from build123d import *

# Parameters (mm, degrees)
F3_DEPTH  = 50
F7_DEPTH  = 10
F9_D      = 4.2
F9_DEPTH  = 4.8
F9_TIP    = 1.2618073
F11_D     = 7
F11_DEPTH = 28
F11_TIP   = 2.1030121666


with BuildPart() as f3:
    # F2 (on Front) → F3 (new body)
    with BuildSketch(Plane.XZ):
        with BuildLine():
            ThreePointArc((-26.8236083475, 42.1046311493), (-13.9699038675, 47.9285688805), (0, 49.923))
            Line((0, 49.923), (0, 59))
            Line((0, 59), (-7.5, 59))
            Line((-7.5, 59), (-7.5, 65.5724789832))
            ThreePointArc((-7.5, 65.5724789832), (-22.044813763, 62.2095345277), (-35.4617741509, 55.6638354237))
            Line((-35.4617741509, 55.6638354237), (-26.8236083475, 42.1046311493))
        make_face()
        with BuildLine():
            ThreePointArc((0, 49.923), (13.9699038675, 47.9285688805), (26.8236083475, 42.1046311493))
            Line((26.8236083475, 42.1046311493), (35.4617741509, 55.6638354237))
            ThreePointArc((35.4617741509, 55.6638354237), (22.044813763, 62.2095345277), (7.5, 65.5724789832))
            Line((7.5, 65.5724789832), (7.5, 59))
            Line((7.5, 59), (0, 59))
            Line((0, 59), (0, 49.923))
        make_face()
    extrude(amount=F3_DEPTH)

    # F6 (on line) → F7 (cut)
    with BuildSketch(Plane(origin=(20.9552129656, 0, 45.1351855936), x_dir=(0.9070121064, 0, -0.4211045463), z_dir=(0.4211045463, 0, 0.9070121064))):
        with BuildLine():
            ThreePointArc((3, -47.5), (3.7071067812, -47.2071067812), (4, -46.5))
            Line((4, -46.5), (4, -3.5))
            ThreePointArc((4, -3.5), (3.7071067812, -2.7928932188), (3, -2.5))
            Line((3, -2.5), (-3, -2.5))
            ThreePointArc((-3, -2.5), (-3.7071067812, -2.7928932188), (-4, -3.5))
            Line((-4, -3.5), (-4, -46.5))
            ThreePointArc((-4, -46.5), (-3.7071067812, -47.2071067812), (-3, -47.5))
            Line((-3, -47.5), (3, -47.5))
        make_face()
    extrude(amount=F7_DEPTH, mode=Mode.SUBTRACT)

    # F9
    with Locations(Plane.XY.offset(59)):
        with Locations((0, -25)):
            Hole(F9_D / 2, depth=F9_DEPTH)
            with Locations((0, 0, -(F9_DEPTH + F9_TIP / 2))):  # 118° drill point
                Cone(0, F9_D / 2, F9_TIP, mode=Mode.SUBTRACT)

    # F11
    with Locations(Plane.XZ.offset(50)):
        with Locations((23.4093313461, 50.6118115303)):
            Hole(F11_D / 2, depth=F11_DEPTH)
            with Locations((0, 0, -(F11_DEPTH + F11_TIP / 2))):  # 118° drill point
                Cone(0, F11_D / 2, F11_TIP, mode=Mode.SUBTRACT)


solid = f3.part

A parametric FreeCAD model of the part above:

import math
import FreeCAD as App
import Part
import Sketcher
from FreeCAD import Vector
Q = App.Units.Quantity

doc = App.newDocument("Part")
body = doc.addObject("PartDesign::Body", "Body")

# Sketch on XZ plane
sketch1 = doc.addObject("Sketcher::SketchObject", "Sketch")
body.addObject(sketch1)
sketch1.AttachmentSupport = (doc.XZ_Plane, [""])
sketch1.MapMode = "FlatFace"
sketch1.addGeometry([
    Part.ArcOfCircle(Part.Circle(Vector(0, 0, 0), Vector(0, 0, 1), 50), math.radians(90), math.radians(122)),  # 0
    Part.ArcOfCircle(Part.Circle(Vector(0, 0, 0), Vector(0, 0, 1), 50), math.radians(58), math.radians(90)),  # 1
    Part.LineSegment(Vector(27, 42, 0), Vector(35, 56, 0)),  # 2
    Part.ArcOfCircle(Part.Circle(Vector(0, 0, 0), Vector(0, 0, 1), 66), math.radians(58), math.radians(83)),  # 3
    Part.LineSegment(Vector(8, 66, 0), Vector(8, 59, 0)),  # 4
    Part.LineSegment(Vector(8, 59, 0), Vector(-8, 59, 0)),  # 5
    Part.LineSegment(Vector(-8, 59, 0), Vector(-8, 66, 0)),  # 6
    Part.ArcOfCircle(Part.Circle(Vector(0, 0, 0), Vector(0, 0, 1), 66), math.radians(97), math.radians(122)),  # 7
    Part.LineSegment(Vector(-35, 56, 0), Vector(-27, 42, 0)),  # 8
], False)
sketch1.addConstraint([
    Sketcher.Constraint("Tangent", 0, 1, 1, 2),
    Sketcher.Constraint("Coincident", 1, 1, 2, 1),
    Sketcher.Constraint("Coincident", 2, 2, 3, 1),
    Sketcher.Constraint("Coincident", 3, 2, 4, 1),
    Sketcher.Constraint("Coincident", 4, 2, 5, 1),
    Sketcher.Constraint("Coincident", 5, 2, 6, 1),
    Sketcher.Constraint("Coincident", 6, 2, 7, 1),
    Sketcher.Constraint("Coincident", 7, 2, 8, 1),
    Sketcher.Constraint("Coincident", 8, 2, 0, 2),
    Sketcher.Constraint("Vertical", 4),
    Sketcher.Constraint("Horizontal", 5),
    Sketcher.Constraint("Vertical", 6),
    Sketcher.Constraint("Coincident", 0, 3, -1, 1),
    Sketcher.Constraint("Coincident", 3, 3, -1, 1),
    Sketcher.Constraint("Coincident", 7, 3, -1, 1),
    Sketcher.Constraint("Equal", 0, 1),
    Sketcher.Constraint("Equal", 3, 7),
    Sketcher.Constraint("PointOnObject", 0, 1, -2),
    Sketcher.Constraint("Horizontal", 3, 2, 6, 2),
    Sketcher.Constraint("Horizontal", 2, 2, 7, 2),
    Sketcher.Constraint("Horizontal", 1, 1, 8, 2),
    Sketcher.Constraint("Radius", 3, 66.0),
    Sketcher.Constraint("DistanceX", 5, 2, 5, 1, 15.0),
    Sketcher.Constraint("DistanceY", -1, 1, 4, 2, 59.0),
    Sketcher.Constraint("Angle", 2, Q("57.5 deg")),
    Sketcher.Constraint("Radius", 0, 49.923),
    Sketcher.Constraint("DistanceX", -1, 1, 1, 1, 26.823608),
])
pad1 = doc.addObject("PartDesign::Pad", "Pad")
body.addObject(pad1)
pad1.Profile = sketch1
pad1.Length = 50

# Sketch on an angled plane
sketch2 = doc.addObject("Sketcher::SketchObject", "Sketch001")
body.addObject(sketch2)
sketch2.Placement = App.Placement(Vector(20.955213, 0, 45.135186), App.Rotation(Vector(0.907012106, 0, -0.421104546), Vector(0, 0.999999999, 0), Vector(0.421104546, 0, 0.907012106), "ZXY"))
sketch2.addGeometry([
    Part.ArcOfCircle(Part.Circle(Vector(3, -46.5, 0), Vector(0, 0, 1), 1), math.radians(-90), math.radians(0)),  # 0
    Part.LineSegment(Vector(4, -46.5, 0), Vector(4, -3.5, 0)),  # 1
    Part.ArcOfCircle(Part.Circle(Vector(3, -3.5, 0), Vector(0, 0, 1), 1), math.radians(0), math.radians(90)),  # 2
    Part.LineSegment(Vector(3, -2.5, 0), Vector(-3, -2.5, 0)),  # 3
    Part.ArcOfCircle(Part.Circle(Vector(-3, -3.5, 0), Vector(0, 0, 1), 1), math.radians(90), math.radians(180)),  # 4
    Part.LineSegment(Vector(-4, -3.5, 0), Vector(-4, -46.5, 0)),  # 5
    Part.ArcOfCircle(Part.Circle(Vector(-3, -46.5, 0), Vector(0, 0, 1), 1), math.radians(180), math.radians(270)),  # 6
    Part.LineSegment(Vector(-3, -47.5, 0), Vector(3, -47.5, 0)),  # 7
], False)
sketch2.addConstraint([
    Sketcher.Constraint("Tangent", 0, 2, 1, 1),
    Sketcher.Constraint("Tangent", 1, 2, 2, 1),
    Sketcher.Constraint("Tangent", 2, 2, 3, 1),
    Sketcher.Constraint("Tangent", 3, 2, 4, 1),
    Sketcher.Constraint("Tangent", 4, 2, 5, 1),
    Sketcher.Constraint("Tangent", 5, 2, 6, 1),
    Sketcher.Constraint("Tangent", 6, 2, 7, 1),
    Sketcher.Constraint("Tangent", 7, 2, 0, 1),
    Sketcher.Constraint("Vertical", 1),
    Sketcher.Constraint("Horizontal", 3),
    Sketcher.Constraint("Vertical", 5),
    Sketcher.Constraint("Horizontal", 7),
    Sketcher.Constraint("Equal", 0, 2),
    Sketcher.Constraint("Equal", 2, 4),
    Sketcher.Constraint("Equal", 4, 6),
    Sketcher.Constraint("Radius", 0, 1.0),
    Sketcher.Constraint("DistanceX", 3, 2, 3, 1, 6.0),
    Sketcher.Constraint("DistanceY", 1, 1, 1, 2, 43.0),
    Sketcher.Constraint("DistanceX", -1, 1, 0, 3, 3.0),
    Sketcher.Constraint("DistanceY", 0, 3, -1, 1, 46.5),
])
pocket1 = doc.addObject("PartDesign::Pocket", "Pocket")
body.addObject(pocket1)
pocket1.Profile = sketch2
pocket1.Length = 10
pocket1.Reversed = True

# Sketch on XY plane
sketch3 = doc.addObject("Sketcher::SketchObject", "Sketch002")
body.addObject(sketch3)
sketch3.AttachmentSupport = (doc.XY_Plane, [""])
sketch3.MapMode = "FlatFace"
sketch3.AttachmentOffset = App.Placement(Vector(0, 0, 59), App.Rotation())
sketch3.addGeometry(Part.Circle(Vector(0, -25, 0), Vector(0, 0, 1), 2.1), False)
sketch3.addConstraint([
    Sketcher.Constraint("PointOnObject", 0, 3, -2),
    Sketcher.Constraint("Diameter", 0, 4.2),
    Sketcher.Constraint("DistanceY", 0, 3, -1, 1, 25.0),
])
doc.recompute()
hole = doc.addObject("PartDesign::Hole", "Hole")
body.addObject(hole)
hole.Profile = sketch3
hole.ThreadType = "None"
hole.Diameter = 4.2
hole.DepthType = "Dimension"
hole.Depth = 4.8
hole.DrillPoint = "Angled"
hole.DrillPointAngle = 118

# Sketch on XZ plane
sketch4 = doc.addObject("Sketcher::SketchObject", "Sketch003")
body.addObject(sketch4)
sketch4.AttachmentSupport = (doc.XZ_Plane, [""])
sketch4.MapMode = "FlatFace"
sketch4.AttachmentOffset = App.Placement(Vector(0, 0, 50), App.Rotation())
sketch4.addGeometry(Part.Circle(Vector(23.4, 50.6, 0), Vector(0, 0, 1), 3.5), False)
sketch4.addConstraint([
    Sketcher.Constraint("Diameter", 0, 7.0),
    Sketcher.Constraint("DistanceX", -1, 1, 0, 3, 23.409331),
    Sketcher.Constraint("DistanceY", -1, 1, 0, 3, 50.611812),
])
doc.recompute()
hole2 = doc.addObject("PartDesign::Hole", "Hole001")
body.addObject(hole2)
hole2.Profile = sketch4
hole2.ThreadType = "None"
hole2.Diameter = 7
hole2.DepthType = "Dimension"
hole2.Depth = 28
hole2.DrillPoint = "Angled"
hole2.DrillPointAngle = 118

doc.recompute()
